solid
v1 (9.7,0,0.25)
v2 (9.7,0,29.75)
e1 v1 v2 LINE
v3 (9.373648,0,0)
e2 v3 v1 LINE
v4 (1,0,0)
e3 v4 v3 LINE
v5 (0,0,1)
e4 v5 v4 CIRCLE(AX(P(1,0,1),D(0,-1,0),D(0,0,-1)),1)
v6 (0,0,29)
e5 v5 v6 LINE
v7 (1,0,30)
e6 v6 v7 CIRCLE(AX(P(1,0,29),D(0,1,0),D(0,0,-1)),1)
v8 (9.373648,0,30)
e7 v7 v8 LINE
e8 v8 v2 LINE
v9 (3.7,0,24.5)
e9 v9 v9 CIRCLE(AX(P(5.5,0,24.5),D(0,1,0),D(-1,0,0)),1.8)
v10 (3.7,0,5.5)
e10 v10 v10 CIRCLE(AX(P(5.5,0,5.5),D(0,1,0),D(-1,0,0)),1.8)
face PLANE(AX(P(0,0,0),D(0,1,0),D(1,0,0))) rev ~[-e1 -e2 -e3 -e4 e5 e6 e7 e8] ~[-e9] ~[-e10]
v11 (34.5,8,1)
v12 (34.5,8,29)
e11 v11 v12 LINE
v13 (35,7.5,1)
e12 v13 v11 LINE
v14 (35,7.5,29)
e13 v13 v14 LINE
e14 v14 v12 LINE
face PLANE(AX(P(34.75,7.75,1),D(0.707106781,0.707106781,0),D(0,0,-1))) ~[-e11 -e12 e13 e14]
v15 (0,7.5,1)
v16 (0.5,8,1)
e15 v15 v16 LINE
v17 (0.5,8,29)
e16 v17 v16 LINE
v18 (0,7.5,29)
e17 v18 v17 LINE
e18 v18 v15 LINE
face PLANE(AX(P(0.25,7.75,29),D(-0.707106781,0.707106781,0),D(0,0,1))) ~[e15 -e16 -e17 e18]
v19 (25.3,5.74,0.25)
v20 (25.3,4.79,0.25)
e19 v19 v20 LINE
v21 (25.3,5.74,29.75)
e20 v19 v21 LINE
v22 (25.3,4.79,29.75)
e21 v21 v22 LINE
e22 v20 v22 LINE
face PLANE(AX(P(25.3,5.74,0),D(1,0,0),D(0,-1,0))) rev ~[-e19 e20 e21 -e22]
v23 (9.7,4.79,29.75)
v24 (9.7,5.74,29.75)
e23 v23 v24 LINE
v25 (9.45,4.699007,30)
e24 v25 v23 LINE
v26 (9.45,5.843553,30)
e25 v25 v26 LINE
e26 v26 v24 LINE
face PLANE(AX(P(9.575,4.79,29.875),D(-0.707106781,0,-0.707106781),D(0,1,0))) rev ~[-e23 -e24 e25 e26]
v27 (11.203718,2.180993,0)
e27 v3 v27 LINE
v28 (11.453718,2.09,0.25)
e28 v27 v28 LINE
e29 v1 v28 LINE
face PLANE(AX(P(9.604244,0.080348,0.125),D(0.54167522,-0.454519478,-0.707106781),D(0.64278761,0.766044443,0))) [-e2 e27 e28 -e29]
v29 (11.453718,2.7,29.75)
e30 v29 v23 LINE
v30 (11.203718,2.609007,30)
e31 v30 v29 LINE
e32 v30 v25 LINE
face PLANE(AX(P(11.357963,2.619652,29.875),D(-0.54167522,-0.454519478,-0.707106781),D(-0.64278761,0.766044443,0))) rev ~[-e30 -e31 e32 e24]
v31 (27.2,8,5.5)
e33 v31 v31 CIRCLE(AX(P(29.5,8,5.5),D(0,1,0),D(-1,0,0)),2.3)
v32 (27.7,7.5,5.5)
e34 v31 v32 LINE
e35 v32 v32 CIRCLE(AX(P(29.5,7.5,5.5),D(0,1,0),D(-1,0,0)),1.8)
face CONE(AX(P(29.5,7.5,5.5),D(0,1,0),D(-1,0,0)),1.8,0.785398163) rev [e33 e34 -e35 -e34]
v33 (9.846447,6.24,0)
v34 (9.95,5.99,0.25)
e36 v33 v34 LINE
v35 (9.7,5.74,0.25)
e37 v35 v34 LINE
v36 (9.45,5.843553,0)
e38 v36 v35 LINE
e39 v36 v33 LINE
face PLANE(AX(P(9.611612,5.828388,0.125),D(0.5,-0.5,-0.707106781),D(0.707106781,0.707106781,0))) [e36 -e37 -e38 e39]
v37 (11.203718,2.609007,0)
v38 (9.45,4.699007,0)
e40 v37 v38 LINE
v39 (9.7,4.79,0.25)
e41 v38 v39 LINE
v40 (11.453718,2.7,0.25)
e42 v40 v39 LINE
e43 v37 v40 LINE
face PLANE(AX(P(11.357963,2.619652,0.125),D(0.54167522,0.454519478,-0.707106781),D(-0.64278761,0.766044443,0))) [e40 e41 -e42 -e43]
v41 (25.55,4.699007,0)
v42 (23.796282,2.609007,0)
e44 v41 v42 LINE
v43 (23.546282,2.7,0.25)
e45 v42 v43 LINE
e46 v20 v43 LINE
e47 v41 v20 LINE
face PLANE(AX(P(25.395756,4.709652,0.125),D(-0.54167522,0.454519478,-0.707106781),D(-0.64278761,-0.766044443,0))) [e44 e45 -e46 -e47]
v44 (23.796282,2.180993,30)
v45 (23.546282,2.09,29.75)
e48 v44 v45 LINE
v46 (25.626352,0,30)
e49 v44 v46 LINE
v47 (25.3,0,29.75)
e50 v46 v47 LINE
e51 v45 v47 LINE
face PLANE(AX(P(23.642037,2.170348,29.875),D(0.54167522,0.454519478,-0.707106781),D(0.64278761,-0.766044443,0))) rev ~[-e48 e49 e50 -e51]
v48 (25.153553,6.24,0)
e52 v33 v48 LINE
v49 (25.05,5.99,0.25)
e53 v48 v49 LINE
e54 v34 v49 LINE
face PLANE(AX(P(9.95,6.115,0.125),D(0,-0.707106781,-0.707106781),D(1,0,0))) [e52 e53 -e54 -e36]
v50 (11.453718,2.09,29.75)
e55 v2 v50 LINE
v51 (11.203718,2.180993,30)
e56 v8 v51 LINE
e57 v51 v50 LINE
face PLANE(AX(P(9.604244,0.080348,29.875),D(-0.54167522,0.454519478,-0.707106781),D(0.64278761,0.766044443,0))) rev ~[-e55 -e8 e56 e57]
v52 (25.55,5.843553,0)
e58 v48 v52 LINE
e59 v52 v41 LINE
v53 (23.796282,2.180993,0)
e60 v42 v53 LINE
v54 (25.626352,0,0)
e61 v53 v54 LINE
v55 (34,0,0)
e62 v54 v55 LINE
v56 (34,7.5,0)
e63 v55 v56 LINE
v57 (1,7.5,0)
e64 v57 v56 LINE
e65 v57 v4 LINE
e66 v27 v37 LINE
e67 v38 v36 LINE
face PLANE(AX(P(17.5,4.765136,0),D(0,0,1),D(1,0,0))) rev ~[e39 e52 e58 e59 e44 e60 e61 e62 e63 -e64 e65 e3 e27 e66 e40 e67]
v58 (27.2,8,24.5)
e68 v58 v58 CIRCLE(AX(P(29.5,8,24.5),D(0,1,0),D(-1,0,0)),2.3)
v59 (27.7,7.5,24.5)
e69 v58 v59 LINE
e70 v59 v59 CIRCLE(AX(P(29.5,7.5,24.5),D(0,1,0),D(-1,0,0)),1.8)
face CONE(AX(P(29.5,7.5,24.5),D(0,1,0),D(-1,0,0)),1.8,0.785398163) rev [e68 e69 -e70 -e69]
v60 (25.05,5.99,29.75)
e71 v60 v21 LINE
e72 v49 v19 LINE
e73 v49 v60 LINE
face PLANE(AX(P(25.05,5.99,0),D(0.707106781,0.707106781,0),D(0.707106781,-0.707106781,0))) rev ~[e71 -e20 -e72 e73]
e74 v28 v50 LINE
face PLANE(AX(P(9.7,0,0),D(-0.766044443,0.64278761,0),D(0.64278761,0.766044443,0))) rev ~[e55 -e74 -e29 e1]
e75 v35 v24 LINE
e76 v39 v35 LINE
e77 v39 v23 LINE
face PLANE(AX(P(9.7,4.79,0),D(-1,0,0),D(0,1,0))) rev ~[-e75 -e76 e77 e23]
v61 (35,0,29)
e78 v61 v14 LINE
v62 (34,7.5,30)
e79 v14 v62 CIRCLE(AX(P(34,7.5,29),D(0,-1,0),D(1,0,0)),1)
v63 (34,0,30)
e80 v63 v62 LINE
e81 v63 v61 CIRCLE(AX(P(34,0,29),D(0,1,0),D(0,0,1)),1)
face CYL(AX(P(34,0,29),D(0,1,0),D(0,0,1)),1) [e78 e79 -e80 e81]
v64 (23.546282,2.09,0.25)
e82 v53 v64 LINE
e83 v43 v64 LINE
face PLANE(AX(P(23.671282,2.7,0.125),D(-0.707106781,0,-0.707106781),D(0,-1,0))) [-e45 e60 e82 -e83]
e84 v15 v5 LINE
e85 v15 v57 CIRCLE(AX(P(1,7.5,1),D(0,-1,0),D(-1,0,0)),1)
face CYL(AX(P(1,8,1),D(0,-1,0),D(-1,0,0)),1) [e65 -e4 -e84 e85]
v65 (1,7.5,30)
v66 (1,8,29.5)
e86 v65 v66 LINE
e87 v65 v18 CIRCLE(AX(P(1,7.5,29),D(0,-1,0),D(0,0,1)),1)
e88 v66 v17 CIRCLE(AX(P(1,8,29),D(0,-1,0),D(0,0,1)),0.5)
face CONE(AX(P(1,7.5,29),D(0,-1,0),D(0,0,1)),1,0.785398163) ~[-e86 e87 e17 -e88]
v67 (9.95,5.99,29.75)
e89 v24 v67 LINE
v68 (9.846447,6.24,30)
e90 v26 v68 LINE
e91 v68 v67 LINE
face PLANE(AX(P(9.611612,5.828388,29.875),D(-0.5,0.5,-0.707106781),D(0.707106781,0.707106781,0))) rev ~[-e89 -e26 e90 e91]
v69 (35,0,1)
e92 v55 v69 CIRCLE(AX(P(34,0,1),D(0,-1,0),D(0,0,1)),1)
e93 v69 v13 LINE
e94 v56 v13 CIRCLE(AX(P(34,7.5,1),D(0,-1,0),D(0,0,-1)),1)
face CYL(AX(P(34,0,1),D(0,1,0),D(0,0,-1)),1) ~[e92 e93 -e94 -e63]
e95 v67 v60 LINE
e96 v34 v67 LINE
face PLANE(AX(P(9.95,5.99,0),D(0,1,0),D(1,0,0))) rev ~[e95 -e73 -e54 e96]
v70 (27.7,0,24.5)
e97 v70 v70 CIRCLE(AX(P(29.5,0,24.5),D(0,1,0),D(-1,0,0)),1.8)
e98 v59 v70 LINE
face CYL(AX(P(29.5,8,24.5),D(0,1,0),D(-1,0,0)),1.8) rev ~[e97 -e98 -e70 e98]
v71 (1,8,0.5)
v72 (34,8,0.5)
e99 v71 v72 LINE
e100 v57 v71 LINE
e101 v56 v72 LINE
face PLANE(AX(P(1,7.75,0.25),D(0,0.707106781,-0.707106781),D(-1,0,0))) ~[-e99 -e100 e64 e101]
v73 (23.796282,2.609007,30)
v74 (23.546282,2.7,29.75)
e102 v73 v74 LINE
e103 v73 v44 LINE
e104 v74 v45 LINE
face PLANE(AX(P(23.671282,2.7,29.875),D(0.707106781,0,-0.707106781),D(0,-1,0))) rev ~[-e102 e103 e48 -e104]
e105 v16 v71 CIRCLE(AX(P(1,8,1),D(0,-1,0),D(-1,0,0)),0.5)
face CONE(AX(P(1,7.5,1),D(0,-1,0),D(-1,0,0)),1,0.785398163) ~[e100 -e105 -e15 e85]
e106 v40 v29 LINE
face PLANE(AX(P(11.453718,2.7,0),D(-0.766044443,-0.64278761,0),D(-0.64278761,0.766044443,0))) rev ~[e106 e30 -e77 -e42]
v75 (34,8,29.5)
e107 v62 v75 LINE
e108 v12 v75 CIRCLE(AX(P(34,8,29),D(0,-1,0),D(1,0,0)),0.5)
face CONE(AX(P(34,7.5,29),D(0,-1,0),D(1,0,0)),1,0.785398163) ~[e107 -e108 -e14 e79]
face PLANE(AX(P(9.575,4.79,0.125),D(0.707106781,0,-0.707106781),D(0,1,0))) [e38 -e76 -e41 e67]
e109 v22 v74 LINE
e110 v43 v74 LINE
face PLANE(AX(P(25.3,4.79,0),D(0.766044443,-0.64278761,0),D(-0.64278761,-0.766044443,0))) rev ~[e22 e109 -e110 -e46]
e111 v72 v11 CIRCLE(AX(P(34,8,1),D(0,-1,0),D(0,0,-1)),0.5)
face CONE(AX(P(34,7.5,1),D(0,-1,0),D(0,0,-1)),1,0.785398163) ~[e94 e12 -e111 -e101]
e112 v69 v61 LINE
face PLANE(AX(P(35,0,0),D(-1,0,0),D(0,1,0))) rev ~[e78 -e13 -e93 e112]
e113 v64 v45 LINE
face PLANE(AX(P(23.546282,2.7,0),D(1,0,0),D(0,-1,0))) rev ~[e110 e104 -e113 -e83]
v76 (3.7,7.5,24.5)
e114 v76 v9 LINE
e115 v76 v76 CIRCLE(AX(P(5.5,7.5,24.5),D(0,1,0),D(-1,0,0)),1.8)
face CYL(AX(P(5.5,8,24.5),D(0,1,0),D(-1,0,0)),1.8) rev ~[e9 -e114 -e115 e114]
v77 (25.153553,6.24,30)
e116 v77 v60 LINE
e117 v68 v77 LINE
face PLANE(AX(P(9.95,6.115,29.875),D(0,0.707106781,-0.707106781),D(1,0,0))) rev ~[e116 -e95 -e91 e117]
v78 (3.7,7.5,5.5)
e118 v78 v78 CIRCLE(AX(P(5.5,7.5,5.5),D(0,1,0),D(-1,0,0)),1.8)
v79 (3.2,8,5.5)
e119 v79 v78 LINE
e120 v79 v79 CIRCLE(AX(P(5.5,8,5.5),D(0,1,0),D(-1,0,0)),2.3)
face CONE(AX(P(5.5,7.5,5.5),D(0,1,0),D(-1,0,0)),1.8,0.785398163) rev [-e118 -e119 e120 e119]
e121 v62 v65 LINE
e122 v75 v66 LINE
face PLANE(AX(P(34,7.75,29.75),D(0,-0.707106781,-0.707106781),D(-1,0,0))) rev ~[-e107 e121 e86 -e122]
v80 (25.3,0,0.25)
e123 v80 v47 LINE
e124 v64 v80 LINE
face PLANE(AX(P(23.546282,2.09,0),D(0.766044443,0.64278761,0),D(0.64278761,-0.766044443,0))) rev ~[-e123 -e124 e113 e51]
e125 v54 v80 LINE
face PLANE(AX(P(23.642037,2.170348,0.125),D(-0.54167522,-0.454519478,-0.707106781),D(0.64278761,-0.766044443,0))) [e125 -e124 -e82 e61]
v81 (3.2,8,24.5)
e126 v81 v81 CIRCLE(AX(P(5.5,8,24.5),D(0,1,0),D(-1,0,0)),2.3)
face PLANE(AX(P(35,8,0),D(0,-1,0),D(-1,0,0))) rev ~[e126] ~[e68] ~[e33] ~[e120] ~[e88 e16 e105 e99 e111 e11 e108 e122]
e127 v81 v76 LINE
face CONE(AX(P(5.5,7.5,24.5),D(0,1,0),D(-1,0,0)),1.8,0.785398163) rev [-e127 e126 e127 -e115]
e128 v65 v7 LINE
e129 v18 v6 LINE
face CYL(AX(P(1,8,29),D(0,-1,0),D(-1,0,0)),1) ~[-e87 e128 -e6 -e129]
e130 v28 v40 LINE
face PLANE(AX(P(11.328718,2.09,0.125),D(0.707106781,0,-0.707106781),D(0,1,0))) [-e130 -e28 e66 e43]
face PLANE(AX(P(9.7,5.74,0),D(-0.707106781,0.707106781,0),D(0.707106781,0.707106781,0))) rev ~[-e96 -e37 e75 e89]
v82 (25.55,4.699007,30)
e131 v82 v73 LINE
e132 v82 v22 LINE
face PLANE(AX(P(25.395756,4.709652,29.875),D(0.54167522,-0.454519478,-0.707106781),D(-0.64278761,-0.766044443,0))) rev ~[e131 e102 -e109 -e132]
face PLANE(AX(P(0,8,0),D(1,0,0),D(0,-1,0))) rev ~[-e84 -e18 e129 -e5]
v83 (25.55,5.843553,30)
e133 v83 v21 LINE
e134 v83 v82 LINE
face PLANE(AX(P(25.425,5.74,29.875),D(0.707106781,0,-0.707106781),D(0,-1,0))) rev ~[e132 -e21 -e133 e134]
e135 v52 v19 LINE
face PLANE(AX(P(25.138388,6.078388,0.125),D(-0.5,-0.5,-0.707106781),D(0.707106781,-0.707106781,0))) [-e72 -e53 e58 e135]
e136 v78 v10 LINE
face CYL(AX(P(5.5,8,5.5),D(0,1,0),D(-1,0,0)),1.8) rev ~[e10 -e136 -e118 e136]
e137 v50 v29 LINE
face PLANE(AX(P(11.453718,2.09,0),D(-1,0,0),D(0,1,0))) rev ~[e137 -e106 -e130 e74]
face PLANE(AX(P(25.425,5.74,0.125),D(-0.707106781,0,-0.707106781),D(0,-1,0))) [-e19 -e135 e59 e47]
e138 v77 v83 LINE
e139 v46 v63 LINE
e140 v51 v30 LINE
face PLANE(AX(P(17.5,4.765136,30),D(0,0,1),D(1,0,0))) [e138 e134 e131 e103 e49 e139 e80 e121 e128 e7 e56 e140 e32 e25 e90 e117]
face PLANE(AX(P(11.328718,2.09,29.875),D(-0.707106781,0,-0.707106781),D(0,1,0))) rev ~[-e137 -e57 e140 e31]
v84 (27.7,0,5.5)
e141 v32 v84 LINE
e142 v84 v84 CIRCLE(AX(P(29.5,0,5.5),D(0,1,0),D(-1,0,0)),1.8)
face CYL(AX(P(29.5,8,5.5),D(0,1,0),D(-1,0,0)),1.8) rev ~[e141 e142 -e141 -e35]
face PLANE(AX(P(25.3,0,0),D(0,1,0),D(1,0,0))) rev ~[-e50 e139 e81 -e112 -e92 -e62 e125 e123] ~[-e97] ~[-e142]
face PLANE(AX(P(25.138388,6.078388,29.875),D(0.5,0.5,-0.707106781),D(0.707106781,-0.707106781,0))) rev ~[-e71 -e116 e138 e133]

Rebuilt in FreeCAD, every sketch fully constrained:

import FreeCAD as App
import Part
import Sketcher
from FreeCAD import Vector
Q = App.Units.Quantity


def edges_at(feature, points):
    """Names of the edges that pass closest to the given points."""
    edges = feature.Shape.Edges
    near = lambda p: min(range(len(edges)), key=lambda i: edges[i].distToShape(Part.Vertex(*p))[0])
    return sorted({f"Edge{near(p) + 1}" for p in points})

doc = App.newDocument("Part")
body = doc.addObject("PartDesign::Body", "Body")

sketch1 = doc.addObject("Sketcher::SketchObject", "Sketch")
body.addObject(sketch1)
sketch1.AttachmentSupport = (doc.XY_Plane, [""])
sketch1.MapMode = "FlatFace"
sketch1.addGeometry([
    Part.LineSegment(Vector(0, 0, 0), Vector(9.7, 0, 0)),
    Part.LineSegment(Vector(9.7, 0, 0), Vector(11.453718, 2.09, 0)),
    Part.LineSegment(Vector(11.453718, 2.09, 0), Vector(11.453718, 2.7, 0)),
    Part.LineSegment(Vector(11.453718, 2.7, 0), Vector(9.7, 4.79, 0)),
    Part.LineSegment(Vector(9.7, 4.79, 0), Vector(9.7, 5.74, 0)),
    Part.LineSegment(Vector(9.7, 5.74, 0), Vector(9.95, 5.99, 0)),
    Part.LineSegment(Vector(9.95, 5.99, 0), Vector(25.05, 5.99, 0)),
    Part.LineSegment(Vector(25.05, 5.99, 0), Vector(25.3, 5.74, 0)),
    Part.LineSegment(Vector(25.3, 5.74, 0), Vector(25.3, 4.79, 0)),
    Part.LineSegment(Vector(25.3, 4.79, 0), Vector(23.546282, 2.7, 0)),
    Part.LineSegment(Vector(23.546282, 2.7, 0), Vector(23.546282, 2.09, 0)),
    Part.LineSegment(Vector(23.546282, 2.09, 0), Vector(25.3, 0, 0)),
    Part.LineSegment(Vector(25.3, 0, 0), Vector(35, 0, 0)),
    Part.LineSegment(Vector(35, 0, 0), Vector(35, 8, 0)),
    Part.LineSegment(Vector(35, 8, 0), Vector(0, 8, 0)),
    Part.LineSegment(Vector(0, 8, 0), Vector(0, 0, 0)),
], False)
sketch1.addConstraint([
    Sketcher.Constraint("Coincident", 0, 2, 1, 1),
    Sketcher.Constraint("Coincident", 1, 2, 2, 1),
    Sketcher.Constraint("Coincident", 2, 2, 3, 1),
    Sketcher.Constraint("Coincident", 3, 2, 4, 1),
    Sketcher.Constraint("Coincident", 4, 2, 5, 1),
    Sketcher.Constraint("Coincident", 5, 2, 6, 1),
    Sketcher.Constraint("Coincident", 6, 2, 7, 1),
    Sketcher.Constraint("Coincident", 7, 2, 8, 1),
    Sketcher.Constraint("Coincident", 8, 2, 9, 1),
    Sketcher.Constraint("Coincident", 9, 2, 10, 1),
    Sketcher.Constraint("Coincident", 10, 2, 11, 1),
    Sketcher.Constraint("Coincident", 11, 2, 12, 1),
    Sketcher.Constraint("Coincident", 12, 2, 13, 1),
    Sketcher.Constraint("Coincident", 13, 2, 14, 1),
    Sketcher.Constraint("Coincident", 14, 2, 15, 1),
    Sketcher.Constraint("Coincident", 15, 2, 0, 1),
    Sketcher.Constraint("Horizontal", 0),
    Sketcher.Constraint("Vertical", 2),
    Sketcher.Constraint("Vertical", 4),
    Sketcher.Constraint("Horizontal", 6),
    Sketcher.Constraint("Vertical", 8),
    Sketcher.Constraint("Vertical", 10),
    Sketcher.Constraint("Horizontal", 12),
    Sketcher.Constraint("Vertical", 13),
    Sketcher.Constraint("Horizontal", 14),
    Sketcher.Constraint("Vertical", 15),
    Sketcher.Constraint("Coincident", 15, 2, -1, 1),
    Sketcher.Constraint("PointOnObject", 11, 2, -1),
    Sketcher.Constraint("Perpendicular", 5, 7),
    Sketcher.Constraint("Parallel", 1, 9),
    Sketcher.Constraint("Parallel", 3, 11),
    Sketcher.Constraint("Horizontal", 4, 2, 7, 2),
    Sketcher.Constraint("Horizontal", 3, 2, 8, 2),
    Sketcher.Constraint("Horizontal", 2, 2, 9, 2),
    Sketcher.Constraint("Horizontal", 1, 2, 10, 2),
    Sketcher.Constraint("Vertical", 0, 2, 3, 2),
    Sketcher.Constraint("Vertical", 8, 2, 11, 2),
    Sketcher.Constraint("Equal", 0, 12),
    Sketcher.Constraint("Equal", 5, 7),
    Sketcher.Constraint("DistanceX", 14, 2, 14, 1, 35.0),
    Sketcher.Constraint("DistanceY", 13, 1, 13, 2, 8.0),
    Sketcher.Constraint("Angle", 1, Q("50 deg")),
    Sketcher.Constraint("DistanceX", 0, 1, 0, 2, 9.7),
    Sketcher.Constraint("DistanceX", 6, 1, 6, 2, 15.1),
    Sketcher.Constraint("DistanceY", 2, 1, 2, 2, 0.61),
    Sketcher.Constraint("DistanceY", 4, 1, 4, 2, 0.95),
    Sketcher.Constraint("DistanceY", -1, 1, 2, 2, 2.7),
])
pad1 = doc.addObject("PartDesign::Pad", "Pad")
body.addObject(pad1)
pad1.Profile = sketch1
pad1.Length = 30

sketch2 = doc.addObject("Sketcher::SketchObject", "Sketch001")
body.addObject(sketch2)
sketch2.AttachmentSupport = (doc.XZ_Plane, [""])
sketch2.MapMode = "FlatFace"
sketch2.AttachmentOffset = App.Placement(Vector(0, 0, -8), App.Rotation())
sketch2.addGeometry([
    Part.Circle(Vector(5.5, 5.5, 0), Vector(0, 0, 1), 1.8),
    Part.Circle(Vector(29.5, 5.5, 0), Vector(0, 0, 1), 1.8),
    Part.Circle(Vector(5.5, 24.5, 0), Vector(0, 0, 1), 1.8),
    Part.Circle(Vector(29.5, 24.5, 0), Vector(0, 0, 1), 1.8),
], False)
sketch2.addConstraint([
    Sketcher.Constraint("Equal", 0, 1),
    Sketcher.Constraint("Equal", 1, 2),
    Sketcher.Constraint("Equal", 2, 3),
    Sketcher.Constraint("Horizontal", 0, 3, 1, 3),
    Sketcher.Constraint("Horizontal", 2, 3, 3, 3),
    Sketcher.Constraint("Vertical", 0, 3, 2, 3),
    Sketcher.Constraint("Vertical", 1, 3, 3, 3),
    Sketcher.Constraint("Diameter", 0, 3.6),
    Sketcher.Constraint("DistanceX", 0, 3, 1, 3, 24.0),
    Sketcher.Constraint("DistanceY", 0, 3, 2, 3, 19.0),
    Sketcher.Constraint("DistanceX", -1, 1, 0, 3, 5.5),
    Sketcher.Constraint("DistanceY", -1, 1, 0, 3, 5.5),
])
pocket1 = doc.addObject("PartDesign::Pocket", "Pocket")
body.addObject(pocket1)
pocket1.Profile = sketch2
pocket1.Length = 8
pocket1.Reversed = True
doc.recompute()

fillet = doc.addObject("PartDesign::Fillet", "Fillet")
body.addObject(fillet)
fillet.Base = (pocket1, edges_at(pocket1, [
    (35, 4, 0),
    (0, 4, 0),
    (0, 4, 30),
    (35, 4, 30),
]))
fillet.Radius = 1
doc.recompute()

chamfer = doc.addObject("PartDesign::Chamfer", "Chamfer")
body.addObject(chamfer)
chamfer.Base = (fillet, edges_at(fillet, [
    (10.577, 1.045, 30),
    (11.454, 2.395, 30),
    (24.423, 1.045, 0),
    (23.546, 2.395, 0),
    (24.423, 3.745, 0),
    (25.3, 5.265, 0),
    (25.175, 5.865, 0),
    (17.5, 5.99, 0),
    (9.825, 5.865, 0),
    (9.7, 5.265, 0),
    (10.577, 3.745, 0),
    (11.454, 2.395, 0),
    (10.577, 3.745, 30),
    (10.577, 1.045, 0),
    (9.7, 5.265, 30),
    (9.825, 5.865, 30),
    (17.5, 5.99, 30),
    (25.175, 5.865, 30),
    (25.3, 5.265, 30),
    (24.423, 3.745, 30),
    (23.546, 2.395, 30),
    (24.423, 1.045, 30),
]))
chamfer.Size = 0.25
doc.recompute()

chamfer2 = doc.addObject("PartDesign::Chamfer", "Chamfer001")
body.addObject(chamfer2)
chamfer2.Base = (chamfer, edges_at(chamfer, [
    (17.5, 8, 30),
    (0, 8, 15),
    (17.5, 8, 0),
    (35, 8, 15),
    (34.707, 8, 0.293),
    (34.707, 8, 29.707),
    (0.293, 8, 0.293),
    (0.293, 8, 29.707),
]))
chamfer2.Size = 0.5
doc.recompute()

chamfer3 = doc.addObject("PartDesign::Chamfer", "Chamfer002")
body.addObject(chamfer3)
chamfer3.Base = (chamfer2, edges_at(chamfer2, [
    (31.3, 8, 5.5),
    (7.3, 8, 24.5),
    (31.3, 8, 24.5),
    (7.3, 8, 5.5),
]))
chamfer3.Size = 0.5

doc.recompute()
